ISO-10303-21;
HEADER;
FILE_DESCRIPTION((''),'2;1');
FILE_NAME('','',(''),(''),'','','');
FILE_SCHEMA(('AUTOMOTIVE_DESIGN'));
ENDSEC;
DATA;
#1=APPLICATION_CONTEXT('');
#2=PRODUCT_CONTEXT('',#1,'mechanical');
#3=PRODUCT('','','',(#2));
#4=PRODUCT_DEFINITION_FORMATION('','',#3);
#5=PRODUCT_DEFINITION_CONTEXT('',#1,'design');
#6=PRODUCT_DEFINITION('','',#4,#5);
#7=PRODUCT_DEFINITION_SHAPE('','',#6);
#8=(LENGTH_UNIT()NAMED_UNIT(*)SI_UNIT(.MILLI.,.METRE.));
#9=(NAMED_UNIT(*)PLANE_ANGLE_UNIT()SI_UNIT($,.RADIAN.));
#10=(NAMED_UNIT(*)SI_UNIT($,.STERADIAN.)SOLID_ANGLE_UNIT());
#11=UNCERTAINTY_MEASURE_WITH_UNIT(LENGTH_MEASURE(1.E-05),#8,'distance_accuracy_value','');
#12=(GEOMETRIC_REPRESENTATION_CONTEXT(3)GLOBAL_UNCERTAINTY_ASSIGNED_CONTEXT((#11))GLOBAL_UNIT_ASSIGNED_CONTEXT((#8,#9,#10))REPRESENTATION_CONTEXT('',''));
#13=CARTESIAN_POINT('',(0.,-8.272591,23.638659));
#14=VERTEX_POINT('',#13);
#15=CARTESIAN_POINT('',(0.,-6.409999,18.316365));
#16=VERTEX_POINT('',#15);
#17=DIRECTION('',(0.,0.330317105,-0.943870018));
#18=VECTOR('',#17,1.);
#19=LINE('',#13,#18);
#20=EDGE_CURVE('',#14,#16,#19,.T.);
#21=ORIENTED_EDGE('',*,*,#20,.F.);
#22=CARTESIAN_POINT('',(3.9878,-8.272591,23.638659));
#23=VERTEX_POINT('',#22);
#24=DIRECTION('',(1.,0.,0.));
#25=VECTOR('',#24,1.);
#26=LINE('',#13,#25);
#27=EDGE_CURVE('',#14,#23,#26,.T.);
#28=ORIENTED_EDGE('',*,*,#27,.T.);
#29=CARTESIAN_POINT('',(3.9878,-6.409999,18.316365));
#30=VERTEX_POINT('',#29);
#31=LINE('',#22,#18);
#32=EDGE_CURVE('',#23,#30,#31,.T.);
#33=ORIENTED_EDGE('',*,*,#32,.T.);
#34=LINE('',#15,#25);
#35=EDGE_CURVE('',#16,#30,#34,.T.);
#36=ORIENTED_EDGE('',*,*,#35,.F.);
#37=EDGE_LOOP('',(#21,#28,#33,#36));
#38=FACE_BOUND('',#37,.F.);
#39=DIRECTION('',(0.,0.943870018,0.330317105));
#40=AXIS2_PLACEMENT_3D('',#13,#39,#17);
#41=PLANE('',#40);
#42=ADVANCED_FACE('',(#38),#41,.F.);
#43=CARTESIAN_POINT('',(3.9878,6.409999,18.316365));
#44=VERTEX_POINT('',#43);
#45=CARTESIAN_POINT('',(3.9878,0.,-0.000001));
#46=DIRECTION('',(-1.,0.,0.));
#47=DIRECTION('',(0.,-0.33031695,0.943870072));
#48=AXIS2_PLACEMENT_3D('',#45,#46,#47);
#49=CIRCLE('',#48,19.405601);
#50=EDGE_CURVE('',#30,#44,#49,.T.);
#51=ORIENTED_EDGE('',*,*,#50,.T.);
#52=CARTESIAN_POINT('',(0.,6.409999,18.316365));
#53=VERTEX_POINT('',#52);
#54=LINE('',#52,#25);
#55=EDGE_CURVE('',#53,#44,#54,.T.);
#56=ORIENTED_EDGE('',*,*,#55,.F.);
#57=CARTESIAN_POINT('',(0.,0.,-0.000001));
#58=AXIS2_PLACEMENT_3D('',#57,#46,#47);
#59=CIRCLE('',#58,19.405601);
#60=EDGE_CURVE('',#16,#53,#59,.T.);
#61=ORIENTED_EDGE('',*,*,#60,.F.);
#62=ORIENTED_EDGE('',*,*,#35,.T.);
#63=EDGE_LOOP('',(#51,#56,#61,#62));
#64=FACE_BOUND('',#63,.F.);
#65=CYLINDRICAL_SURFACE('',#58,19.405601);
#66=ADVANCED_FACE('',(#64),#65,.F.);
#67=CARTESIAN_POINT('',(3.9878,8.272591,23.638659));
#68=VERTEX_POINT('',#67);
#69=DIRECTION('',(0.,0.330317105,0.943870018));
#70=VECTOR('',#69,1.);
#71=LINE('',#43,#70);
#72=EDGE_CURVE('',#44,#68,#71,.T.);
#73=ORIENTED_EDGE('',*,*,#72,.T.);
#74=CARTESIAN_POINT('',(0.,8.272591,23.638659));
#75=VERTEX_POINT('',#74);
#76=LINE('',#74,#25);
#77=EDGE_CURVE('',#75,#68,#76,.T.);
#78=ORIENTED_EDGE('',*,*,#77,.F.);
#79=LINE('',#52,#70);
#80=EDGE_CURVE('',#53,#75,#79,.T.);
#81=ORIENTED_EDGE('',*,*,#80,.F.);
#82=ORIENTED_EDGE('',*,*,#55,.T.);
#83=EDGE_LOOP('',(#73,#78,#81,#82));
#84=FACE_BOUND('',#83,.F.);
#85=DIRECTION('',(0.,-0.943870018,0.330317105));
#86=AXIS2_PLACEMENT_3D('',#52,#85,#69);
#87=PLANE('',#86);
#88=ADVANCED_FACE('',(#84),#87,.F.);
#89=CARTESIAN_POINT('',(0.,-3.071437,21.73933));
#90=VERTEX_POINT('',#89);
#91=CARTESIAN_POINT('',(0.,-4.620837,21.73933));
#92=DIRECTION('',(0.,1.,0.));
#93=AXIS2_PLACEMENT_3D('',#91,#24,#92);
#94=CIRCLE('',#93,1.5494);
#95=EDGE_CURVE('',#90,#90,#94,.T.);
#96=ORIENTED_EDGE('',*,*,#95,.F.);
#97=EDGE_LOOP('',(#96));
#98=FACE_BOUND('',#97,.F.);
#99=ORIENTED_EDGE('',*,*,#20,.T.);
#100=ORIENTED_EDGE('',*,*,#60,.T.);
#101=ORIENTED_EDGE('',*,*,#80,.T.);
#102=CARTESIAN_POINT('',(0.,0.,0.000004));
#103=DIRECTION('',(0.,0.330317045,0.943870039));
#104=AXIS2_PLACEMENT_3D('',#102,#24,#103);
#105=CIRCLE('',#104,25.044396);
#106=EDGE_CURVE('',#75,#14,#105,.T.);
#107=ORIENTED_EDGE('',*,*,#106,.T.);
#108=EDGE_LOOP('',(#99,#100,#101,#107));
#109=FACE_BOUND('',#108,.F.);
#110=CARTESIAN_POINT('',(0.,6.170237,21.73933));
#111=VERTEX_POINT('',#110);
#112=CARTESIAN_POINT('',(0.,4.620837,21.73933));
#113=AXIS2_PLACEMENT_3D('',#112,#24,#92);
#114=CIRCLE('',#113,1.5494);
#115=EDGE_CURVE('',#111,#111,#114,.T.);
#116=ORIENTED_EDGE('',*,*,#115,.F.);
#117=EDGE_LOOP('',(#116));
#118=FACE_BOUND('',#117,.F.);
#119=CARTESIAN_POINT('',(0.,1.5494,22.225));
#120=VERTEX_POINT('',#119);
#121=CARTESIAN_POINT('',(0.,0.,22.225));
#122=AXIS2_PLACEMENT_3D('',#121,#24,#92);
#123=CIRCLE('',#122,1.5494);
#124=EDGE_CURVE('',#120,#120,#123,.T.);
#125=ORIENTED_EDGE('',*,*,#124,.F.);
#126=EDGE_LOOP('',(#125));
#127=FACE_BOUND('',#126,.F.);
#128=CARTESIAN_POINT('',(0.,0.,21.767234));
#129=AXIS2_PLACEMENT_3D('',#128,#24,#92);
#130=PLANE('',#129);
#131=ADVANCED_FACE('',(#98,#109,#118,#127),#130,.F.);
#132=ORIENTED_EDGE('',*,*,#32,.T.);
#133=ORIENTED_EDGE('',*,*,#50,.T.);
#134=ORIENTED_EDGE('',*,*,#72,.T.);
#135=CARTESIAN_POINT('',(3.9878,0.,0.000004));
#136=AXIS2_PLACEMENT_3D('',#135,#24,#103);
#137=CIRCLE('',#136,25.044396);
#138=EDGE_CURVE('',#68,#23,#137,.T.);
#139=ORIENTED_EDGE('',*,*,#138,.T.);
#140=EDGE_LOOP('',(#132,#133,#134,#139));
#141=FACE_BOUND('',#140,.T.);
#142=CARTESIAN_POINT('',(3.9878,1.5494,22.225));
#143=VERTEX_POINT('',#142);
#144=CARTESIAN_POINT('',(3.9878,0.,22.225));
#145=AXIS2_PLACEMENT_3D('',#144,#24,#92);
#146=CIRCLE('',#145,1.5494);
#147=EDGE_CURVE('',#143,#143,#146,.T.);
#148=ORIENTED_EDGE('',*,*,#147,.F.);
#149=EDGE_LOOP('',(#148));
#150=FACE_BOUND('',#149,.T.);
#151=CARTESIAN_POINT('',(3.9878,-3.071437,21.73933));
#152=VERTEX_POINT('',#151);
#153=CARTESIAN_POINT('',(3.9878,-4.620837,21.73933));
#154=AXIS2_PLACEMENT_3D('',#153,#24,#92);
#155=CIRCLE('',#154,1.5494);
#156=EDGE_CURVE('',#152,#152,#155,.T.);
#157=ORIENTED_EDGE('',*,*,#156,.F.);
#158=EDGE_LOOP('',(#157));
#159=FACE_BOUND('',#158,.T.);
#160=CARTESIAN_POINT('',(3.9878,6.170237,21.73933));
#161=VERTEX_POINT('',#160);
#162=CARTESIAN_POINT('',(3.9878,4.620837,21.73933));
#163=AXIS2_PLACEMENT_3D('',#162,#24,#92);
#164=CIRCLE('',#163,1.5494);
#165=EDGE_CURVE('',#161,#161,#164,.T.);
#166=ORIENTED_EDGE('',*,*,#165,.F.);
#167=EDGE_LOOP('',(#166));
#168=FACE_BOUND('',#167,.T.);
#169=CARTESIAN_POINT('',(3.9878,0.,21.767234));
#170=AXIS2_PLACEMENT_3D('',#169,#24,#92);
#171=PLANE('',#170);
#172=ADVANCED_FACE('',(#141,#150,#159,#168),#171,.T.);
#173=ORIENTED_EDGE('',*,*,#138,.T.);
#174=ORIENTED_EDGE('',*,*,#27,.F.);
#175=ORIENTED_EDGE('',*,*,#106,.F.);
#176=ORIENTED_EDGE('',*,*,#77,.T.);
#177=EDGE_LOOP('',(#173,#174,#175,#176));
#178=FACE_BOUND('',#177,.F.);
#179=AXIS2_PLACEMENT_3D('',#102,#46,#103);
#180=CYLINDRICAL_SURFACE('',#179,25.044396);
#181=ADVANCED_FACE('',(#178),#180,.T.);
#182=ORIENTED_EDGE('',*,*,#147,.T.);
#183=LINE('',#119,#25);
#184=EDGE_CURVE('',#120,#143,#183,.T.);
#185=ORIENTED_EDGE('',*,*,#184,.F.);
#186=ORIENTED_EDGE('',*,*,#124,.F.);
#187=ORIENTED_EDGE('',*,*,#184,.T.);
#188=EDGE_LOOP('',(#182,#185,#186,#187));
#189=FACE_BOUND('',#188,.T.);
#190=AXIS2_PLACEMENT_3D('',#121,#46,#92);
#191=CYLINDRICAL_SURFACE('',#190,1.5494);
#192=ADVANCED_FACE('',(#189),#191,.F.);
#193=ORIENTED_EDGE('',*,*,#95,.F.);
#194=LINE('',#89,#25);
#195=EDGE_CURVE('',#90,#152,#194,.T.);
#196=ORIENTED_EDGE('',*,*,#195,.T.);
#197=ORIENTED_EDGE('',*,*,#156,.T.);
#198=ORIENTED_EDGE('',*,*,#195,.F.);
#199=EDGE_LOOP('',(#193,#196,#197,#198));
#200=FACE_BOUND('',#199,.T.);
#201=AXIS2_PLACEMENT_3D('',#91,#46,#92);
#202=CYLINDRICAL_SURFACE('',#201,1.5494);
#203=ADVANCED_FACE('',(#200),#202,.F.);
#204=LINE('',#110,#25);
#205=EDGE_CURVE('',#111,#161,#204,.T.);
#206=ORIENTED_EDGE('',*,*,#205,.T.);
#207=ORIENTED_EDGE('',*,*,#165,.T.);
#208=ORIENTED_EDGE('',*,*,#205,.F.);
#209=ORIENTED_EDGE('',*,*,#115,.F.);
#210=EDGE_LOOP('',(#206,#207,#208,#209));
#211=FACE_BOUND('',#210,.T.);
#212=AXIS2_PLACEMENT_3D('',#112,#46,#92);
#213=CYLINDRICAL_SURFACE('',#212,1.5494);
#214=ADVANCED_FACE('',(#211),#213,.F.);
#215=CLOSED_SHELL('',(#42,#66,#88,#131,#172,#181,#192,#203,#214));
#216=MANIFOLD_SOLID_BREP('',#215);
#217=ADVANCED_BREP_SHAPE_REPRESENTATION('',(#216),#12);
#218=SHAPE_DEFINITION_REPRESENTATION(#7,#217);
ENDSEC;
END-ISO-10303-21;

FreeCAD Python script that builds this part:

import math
import FreeCAD as App
import Part
import Sketcher
Q = App.Units.Quantity

doc = App.newDocument("Part")
body = doc.addObject("PartDesign::Body", "Body")

# Sketch on YZ plane
sketch1 = doc.addObject("Sketcher::SketchObject", "Sketch")
body.addObject(sketch1)
sketch1.AttachmentSupport = (doc.YZ_Plane, [""])
sketch1.MapMode = "FlatFace"
sketch1.addGeometry([
    Part.ArcOfCircle(Part.Circle(App.Vector(0, 0, 0), App.Vector(0, 0, 1), 25), math.radians(71), math.radians(109)),  # 0
    Part.LineSegment(App.Vector(-8.3, 23.6, 0), App.Vector(-6.4, 18.3, 0)),  # 1
    Part.ArcOfCircle(Part.Circle(App.Vector(0, 0, 0), App.Vector(0, 0, 1), 19.4), math.radians(71), math.radians(109)),  # 2
    Part.LineSegment(App.Vector(6.4, 18.3, 0), App.Vector(8.3, 23.6, 0)),  # 3
    Part.Circle(App.Vector(-4.6, 21.7, 0), App.Vector(0, 0, 1), 1.5),  # 4
    Part.Circle(App.Vector(4.6, 21.7, 0), App.Vector(0, 0, 1), 1.5),  # 5
    Part.Circle(App.Vector(0, 22.2, 0), App.Vector(0, 0, 1), 1.5),  # 6
], False)
sketch1.addConstraint([
    Sketcher.Constraint("Coincident", 0, 2, 1, 1),
    Sketcher.Constraint("Coincident", 1, 2, 2, 2),
    Sketcher.Constraint("Coincident", 2, 1, 3, 1),
    Sketcher.Constraint("Coincident", 3, 2, 0, 1),
    Sketcher.Constraint("Coincident", 0, 3, -1, 1),
    Sketcher.Constraint("Coincident", 2, 3, -1, 1),
    Sketcher.Constraint("Equal", 4, 5),
    Sketcher.Constraint("Equal", 5, 6),
    Sketcher.Constraint("Symmetric", 4, 3, 5, 3, -2),
    Sketcher.Constraint("PointOnObject", 6, 3, -2),
    Sketcher.Constraint("Horizontal", 1, 2, 2, 1),
    Sketcher.Constraint("Horizontal", 0, 2, 3, 2),
    Sketcher.Constraint("Diameter", 4, Q("0.122 in")),
    Sketcher.Constraint("Radius", 0, Q("0.9859999 in")),
    Sketcher.Constraint("Radius", 2, Q("0.764 in")),
    Sketcher.Constraint("DistanceY", -1, 1, 6, 3, Q("0.875 in")),
    Sketcher.Constraint("DistanceX", 1, 2, -1, 1, 6.409999),
    Sketcher.Constraint("DistanceY", -1, 1, 4, 3, 21.73933),
    Sketcher.Constraint("DistanceX", 0, 2, -1, 1, 8.272591),
    Sketcher.Constraint("DistanceX", 4, 3, -1, 1, 4.620837),
])
pad1 = doc.addObject("PartDesign::Pad", "Pad")
body.addObject(pad1)
pad1.Profile = sketch1
pad1.Length = Q("0.157 in")

doc.recompute()
